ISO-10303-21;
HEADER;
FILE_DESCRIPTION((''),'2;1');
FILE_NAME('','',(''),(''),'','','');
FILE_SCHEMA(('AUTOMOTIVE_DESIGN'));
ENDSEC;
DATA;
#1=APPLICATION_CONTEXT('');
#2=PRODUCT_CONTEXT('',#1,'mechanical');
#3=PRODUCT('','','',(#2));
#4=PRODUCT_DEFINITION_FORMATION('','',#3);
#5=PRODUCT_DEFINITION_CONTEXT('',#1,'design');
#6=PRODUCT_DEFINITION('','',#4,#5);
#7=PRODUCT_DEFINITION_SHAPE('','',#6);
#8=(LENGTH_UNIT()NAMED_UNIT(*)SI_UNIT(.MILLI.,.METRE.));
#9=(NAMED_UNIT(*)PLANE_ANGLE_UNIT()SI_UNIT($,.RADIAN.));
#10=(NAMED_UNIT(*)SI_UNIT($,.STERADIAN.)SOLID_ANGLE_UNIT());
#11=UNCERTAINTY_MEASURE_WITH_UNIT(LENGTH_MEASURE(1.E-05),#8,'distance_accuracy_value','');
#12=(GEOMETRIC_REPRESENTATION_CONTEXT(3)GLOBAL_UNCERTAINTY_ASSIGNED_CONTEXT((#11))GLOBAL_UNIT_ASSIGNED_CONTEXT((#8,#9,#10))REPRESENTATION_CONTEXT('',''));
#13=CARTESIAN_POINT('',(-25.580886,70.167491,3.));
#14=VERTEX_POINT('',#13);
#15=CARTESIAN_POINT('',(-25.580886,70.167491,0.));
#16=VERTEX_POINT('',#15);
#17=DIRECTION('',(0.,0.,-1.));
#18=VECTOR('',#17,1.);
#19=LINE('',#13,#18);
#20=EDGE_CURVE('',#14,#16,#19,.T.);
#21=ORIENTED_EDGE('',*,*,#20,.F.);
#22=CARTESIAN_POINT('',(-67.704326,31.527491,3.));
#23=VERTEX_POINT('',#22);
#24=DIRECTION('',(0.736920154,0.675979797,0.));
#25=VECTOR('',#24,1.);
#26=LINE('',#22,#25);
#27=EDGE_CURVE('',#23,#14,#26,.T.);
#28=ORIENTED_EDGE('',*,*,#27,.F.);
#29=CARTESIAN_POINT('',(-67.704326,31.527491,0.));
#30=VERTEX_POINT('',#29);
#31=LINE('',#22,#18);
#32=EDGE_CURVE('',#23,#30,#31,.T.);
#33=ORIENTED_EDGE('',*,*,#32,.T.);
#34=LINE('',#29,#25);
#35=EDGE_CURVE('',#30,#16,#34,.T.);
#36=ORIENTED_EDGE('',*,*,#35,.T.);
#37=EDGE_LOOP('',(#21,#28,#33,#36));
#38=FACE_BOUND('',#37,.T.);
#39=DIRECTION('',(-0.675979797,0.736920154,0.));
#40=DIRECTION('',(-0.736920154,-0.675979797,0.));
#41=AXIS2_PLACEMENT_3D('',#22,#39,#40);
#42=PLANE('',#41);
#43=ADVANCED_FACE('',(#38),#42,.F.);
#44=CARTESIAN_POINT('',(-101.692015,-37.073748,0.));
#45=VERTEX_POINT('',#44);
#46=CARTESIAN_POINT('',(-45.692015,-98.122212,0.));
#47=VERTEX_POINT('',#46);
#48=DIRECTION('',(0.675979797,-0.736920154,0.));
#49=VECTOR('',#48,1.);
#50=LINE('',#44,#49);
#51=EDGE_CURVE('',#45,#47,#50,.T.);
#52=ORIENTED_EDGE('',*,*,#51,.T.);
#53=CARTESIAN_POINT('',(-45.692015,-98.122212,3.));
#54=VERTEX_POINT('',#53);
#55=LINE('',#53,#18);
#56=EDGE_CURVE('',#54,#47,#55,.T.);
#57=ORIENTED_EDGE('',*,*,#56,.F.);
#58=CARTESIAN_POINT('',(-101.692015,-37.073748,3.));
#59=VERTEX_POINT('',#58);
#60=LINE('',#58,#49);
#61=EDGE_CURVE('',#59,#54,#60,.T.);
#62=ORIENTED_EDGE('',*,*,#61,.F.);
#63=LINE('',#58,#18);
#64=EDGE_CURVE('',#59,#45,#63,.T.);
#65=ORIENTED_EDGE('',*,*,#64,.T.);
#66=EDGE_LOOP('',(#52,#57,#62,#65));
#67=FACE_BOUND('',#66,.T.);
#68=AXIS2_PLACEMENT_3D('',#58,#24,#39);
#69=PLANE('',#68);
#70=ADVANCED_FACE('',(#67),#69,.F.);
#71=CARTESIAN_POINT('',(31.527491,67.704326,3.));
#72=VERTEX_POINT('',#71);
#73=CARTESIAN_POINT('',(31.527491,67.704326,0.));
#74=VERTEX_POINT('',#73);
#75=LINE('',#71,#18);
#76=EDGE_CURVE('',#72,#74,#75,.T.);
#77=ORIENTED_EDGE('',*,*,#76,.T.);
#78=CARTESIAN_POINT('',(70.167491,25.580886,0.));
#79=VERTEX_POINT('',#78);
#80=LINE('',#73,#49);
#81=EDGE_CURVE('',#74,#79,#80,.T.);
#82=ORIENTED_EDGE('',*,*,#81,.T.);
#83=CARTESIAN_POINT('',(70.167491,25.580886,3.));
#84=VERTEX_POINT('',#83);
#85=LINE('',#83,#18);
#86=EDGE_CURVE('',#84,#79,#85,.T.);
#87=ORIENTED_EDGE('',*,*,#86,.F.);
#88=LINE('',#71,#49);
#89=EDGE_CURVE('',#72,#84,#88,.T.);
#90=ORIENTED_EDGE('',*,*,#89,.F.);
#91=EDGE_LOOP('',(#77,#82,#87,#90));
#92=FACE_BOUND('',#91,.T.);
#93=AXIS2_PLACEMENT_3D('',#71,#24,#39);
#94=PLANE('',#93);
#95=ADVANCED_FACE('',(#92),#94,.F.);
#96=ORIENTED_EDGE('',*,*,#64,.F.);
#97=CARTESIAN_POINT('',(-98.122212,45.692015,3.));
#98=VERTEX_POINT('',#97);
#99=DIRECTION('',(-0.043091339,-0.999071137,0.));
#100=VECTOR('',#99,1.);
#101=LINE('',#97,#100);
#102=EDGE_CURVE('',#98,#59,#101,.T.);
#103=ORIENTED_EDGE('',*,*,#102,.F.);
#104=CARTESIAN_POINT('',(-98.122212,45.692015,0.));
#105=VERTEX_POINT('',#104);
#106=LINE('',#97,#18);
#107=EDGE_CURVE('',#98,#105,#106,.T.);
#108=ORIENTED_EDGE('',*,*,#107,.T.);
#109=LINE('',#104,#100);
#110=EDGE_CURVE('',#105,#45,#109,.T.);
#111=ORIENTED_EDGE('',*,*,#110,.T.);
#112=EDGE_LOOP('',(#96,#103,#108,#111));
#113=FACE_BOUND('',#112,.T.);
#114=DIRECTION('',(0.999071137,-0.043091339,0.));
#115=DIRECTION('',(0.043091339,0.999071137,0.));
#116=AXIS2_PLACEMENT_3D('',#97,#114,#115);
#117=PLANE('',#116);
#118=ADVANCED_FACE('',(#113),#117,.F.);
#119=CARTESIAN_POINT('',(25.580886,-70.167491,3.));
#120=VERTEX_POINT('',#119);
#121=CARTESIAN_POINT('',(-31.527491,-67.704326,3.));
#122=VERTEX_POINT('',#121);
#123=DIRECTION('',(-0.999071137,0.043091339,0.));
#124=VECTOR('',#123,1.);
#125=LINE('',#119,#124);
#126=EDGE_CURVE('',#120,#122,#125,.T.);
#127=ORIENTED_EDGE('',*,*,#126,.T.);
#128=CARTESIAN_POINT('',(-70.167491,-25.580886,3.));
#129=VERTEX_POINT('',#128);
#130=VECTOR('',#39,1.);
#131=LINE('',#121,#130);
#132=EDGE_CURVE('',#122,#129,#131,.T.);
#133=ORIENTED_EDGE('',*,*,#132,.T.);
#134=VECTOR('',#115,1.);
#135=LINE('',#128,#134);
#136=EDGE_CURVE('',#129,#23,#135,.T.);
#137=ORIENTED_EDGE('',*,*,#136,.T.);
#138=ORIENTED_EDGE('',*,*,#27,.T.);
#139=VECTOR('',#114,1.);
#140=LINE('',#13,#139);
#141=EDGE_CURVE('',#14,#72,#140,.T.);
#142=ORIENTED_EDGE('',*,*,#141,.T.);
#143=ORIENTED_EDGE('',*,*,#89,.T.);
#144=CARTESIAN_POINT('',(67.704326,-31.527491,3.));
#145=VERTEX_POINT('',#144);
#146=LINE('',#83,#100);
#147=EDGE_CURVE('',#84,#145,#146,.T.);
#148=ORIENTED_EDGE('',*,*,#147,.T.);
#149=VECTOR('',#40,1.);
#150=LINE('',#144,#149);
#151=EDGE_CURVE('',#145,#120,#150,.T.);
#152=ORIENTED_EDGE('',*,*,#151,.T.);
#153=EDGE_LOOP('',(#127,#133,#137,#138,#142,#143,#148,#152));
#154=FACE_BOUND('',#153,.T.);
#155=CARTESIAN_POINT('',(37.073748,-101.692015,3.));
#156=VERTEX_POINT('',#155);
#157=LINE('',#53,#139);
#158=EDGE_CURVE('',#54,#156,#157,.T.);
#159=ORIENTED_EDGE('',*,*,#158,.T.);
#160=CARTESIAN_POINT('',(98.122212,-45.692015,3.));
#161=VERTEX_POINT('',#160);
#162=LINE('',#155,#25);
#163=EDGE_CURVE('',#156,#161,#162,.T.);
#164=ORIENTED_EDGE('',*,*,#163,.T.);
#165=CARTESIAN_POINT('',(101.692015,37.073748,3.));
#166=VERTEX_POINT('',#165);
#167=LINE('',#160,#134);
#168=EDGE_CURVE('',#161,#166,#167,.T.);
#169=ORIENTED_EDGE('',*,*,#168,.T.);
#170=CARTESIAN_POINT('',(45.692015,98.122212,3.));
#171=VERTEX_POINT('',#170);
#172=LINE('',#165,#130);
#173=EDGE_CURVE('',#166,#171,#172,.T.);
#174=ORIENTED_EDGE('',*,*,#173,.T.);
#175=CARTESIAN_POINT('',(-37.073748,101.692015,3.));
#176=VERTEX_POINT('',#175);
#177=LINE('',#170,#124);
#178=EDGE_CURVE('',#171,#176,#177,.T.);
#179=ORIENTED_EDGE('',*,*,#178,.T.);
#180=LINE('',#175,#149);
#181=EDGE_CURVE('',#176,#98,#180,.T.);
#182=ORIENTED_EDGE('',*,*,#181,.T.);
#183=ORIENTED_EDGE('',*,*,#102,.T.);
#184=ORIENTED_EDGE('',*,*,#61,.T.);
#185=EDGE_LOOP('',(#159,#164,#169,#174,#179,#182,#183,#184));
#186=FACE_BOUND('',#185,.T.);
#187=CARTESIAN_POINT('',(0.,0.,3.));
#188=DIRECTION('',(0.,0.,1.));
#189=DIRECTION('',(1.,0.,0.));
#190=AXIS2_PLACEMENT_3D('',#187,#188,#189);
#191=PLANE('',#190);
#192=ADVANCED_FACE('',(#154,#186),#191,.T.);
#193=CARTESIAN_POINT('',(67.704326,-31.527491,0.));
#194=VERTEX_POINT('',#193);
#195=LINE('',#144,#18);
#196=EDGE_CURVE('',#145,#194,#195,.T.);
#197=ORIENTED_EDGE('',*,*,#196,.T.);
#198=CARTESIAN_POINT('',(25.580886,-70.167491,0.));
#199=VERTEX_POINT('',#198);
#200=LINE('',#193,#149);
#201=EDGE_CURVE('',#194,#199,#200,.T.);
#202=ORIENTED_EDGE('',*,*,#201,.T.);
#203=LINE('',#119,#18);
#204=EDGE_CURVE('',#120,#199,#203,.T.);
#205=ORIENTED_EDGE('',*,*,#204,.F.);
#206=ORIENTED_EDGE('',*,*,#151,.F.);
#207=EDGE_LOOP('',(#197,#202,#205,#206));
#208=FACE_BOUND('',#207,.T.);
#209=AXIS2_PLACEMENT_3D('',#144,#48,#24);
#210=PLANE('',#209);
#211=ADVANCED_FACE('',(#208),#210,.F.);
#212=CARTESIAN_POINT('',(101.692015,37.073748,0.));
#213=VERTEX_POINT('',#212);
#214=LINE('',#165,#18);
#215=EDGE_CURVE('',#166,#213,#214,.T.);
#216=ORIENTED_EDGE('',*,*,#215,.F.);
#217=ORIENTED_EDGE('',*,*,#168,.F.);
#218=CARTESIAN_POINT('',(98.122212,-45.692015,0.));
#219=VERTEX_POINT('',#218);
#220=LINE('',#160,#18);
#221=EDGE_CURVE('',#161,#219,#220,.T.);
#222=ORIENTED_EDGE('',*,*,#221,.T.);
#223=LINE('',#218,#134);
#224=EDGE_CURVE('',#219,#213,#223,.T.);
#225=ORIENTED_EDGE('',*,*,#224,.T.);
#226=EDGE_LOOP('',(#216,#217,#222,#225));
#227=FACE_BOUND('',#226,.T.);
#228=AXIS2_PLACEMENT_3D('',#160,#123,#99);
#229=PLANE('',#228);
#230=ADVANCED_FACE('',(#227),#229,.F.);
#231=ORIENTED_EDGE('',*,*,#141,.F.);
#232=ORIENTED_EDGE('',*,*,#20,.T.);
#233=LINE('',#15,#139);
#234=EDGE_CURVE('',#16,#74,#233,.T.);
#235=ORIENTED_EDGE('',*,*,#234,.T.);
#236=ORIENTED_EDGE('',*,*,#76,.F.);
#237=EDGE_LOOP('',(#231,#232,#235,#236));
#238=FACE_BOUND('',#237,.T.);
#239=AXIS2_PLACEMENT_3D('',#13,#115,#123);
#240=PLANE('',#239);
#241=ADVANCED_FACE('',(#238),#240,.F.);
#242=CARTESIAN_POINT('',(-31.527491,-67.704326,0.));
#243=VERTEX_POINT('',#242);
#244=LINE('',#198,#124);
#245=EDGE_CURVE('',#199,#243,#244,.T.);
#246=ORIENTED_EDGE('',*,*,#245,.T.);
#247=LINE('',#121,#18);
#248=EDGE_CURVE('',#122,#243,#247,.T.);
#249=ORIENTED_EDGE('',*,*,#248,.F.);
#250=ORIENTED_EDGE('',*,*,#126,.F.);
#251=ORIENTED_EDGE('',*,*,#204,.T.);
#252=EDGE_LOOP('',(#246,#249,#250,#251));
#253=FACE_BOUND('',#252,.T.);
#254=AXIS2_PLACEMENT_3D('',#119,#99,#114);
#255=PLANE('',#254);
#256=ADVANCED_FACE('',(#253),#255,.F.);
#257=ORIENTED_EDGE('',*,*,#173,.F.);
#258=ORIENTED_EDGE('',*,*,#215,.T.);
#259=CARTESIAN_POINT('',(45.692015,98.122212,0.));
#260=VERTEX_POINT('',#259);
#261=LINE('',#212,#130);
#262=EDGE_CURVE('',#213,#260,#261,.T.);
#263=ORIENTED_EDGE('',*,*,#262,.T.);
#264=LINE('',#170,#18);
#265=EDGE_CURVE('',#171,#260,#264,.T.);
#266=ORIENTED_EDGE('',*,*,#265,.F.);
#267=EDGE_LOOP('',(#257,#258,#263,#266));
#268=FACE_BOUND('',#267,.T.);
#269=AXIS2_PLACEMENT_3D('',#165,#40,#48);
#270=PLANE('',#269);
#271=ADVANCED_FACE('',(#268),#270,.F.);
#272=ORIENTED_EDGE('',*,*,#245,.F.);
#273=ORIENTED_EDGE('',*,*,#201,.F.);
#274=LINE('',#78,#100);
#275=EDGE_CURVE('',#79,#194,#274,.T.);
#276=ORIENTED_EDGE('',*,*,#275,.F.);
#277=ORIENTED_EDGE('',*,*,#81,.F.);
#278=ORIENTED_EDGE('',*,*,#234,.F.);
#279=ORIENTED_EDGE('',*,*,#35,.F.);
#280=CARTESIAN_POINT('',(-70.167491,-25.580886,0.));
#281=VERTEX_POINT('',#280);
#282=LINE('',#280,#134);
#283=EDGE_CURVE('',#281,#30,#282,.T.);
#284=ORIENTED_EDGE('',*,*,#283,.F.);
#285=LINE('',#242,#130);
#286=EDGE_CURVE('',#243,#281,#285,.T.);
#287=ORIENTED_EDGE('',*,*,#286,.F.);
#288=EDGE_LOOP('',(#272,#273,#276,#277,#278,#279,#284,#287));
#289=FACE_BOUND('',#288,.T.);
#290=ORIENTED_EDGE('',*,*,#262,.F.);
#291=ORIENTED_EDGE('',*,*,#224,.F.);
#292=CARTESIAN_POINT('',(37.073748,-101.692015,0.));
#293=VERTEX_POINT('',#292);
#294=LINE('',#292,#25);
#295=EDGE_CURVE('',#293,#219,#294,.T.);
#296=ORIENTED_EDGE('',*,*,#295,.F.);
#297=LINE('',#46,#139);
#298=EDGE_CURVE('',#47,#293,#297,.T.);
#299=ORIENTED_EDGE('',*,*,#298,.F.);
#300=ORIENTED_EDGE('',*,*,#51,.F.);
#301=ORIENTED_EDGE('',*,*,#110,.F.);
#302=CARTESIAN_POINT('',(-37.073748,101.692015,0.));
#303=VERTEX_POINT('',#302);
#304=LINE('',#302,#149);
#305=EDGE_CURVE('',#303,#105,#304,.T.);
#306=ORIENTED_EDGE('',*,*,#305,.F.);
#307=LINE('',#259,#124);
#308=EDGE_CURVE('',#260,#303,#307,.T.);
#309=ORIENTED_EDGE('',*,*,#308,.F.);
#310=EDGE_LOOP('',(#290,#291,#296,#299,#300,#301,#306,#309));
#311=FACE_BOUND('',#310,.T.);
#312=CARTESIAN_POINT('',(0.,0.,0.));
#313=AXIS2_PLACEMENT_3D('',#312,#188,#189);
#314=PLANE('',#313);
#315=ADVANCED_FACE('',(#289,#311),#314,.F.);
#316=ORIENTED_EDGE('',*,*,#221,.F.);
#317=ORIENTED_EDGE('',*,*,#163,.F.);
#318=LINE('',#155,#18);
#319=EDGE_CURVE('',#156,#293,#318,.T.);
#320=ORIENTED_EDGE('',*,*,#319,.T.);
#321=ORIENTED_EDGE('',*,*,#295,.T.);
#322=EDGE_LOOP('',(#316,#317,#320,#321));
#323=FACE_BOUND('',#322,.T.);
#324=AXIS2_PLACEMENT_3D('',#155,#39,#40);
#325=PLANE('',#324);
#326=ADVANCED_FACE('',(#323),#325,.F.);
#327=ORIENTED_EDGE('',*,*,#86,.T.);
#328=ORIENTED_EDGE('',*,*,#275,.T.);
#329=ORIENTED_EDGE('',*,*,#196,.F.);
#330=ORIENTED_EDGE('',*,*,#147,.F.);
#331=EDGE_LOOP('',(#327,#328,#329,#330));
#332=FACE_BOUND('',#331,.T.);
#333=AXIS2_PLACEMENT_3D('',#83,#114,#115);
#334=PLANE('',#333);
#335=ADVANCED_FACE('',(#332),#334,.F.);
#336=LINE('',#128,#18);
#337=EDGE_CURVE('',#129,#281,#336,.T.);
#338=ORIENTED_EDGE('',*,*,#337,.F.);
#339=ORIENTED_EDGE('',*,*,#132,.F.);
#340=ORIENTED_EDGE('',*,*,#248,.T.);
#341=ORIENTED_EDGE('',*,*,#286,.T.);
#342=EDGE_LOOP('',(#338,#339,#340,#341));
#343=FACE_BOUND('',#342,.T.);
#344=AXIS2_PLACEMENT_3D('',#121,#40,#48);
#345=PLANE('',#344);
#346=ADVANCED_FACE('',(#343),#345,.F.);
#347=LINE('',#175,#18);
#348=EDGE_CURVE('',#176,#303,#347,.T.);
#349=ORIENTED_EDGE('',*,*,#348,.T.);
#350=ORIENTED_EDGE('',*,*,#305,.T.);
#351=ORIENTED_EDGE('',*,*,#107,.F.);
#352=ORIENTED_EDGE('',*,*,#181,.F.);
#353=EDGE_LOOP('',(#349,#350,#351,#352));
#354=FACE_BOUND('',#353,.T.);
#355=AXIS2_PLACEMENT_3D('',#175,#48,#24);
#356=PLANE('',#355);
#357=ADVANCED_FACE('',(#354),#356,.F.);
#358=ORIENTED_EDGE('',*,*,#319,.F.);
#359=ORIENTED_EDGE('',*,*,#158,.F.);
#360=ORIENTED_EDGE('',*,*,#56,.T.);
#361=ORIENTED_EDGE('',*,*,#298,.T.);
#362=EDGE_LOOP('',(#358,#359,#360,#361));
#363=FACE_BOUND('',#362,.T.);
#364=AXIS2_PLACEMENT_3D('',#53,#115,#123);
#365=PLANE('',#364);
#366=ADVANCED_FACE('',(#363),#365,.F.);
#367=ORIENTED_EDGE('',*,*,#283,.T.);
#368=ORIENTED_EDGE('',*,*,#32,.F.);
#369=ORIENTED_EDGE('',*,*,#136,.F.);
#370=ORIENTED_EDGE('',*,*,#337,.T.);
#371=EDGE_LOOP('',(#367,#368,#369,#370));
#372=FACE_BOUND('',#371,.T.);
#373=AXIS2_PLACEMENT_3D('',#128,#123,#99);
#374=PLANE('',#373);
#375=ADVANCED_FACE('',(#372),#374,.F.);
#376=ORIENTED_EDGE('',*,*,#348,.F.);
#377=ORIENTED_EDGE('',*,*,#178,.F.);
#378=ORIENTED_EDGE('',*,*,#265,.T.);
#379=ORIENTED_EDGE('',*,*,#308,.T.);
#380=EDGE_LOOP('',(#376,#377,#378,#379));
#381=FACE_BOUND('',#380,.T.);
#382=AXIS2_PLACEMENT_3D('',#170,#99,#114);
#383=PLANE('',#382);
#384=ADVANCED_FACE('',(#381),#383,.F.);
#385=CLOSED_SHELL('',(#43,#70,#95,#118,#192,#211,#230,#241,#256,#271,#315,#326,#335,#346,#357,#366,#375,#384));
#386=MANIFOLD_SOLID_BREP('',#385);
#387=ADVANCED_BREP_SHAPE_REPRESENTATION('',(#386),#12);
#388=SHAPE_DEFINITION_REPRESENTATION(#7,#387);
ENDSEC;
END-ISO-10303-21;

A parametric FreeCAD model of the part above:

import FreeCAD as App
import Part
import Sketcher
from FreeCAD import Vector

doc = App.newDocument("Part")
body = doc.addObject("PartDesign::Body", "Body")

# Sketch on XY plane
sketch1 = body.newObject("Sketcher::SketchObject", "Sketch")
sketch1.AttachmentSupport = (doc.getObject("XY_Plane"), [""])
sketch1.MapMode = "FlatFace"
sketch1.addGeometry(Part.LineSegment(Vector(-45.692015, -98.122212, 0), Vector(37.073748, -101.692015, 0)), False)
sketch1.addGeometry(Part.LineSegment(Vector(37.073748, -101.692015, 0), Vector(98.122212, -45.692015, 0)), False)
sketch1.addGeometry(Part.LineSegment(Vector(98.122212, -45.692015, 0), Vector(101.692015, 37.073748, 0)), False)
sketch1.addGeometry(Part.LineSegment(Vector(101.692015, 37.073748, 0), Vector(45.692015, 98.122212, 0)), False)
sketch1.addGeometry(Part.LineSegment(Vector(45.692015, 98.122212, 0), Vector(-37.073748, 101.692015, 0)), False)
sketch1.addGeometry(Part.LineSegment(Vector(-37.073748, 101.692015, 0), Vector(-98.122212, 45.692015, 0)), False)
sketch1.addGeometry(Part.LineSegment(Vector(-98.122212, 45.692015, 0), Vector(-101.692015, -37.073748, 0)), False)
sketch1.addGeometry(Part.LineSegment(Vector(-101.692015, -37.073748, 0), Vector(-45.692015, -98.122212, 0)), False)
sketch1.addConstraint(Sketcher.Constraint("Coincident", 0, 2, 1, 1))
sketch1.addConstraint(Sketcher.Constraint("Coincident", 1, 2, 2, 1))
sketch1.addConstraint(Sketcher.Constraint("Coincident", 2, 2, 3, 1))
sketch1.addConstraint(Sketcher.Constraint("Coincident", 3, 2, 4, 1))
sketch1.addConstraint(Sketcher.Constraint("Coincident", 4, 2, 5, 1))
sketch1.addConstraint(Sketcher.Constraint("Coincident", 5, 2, 6, 1))
sketch1.addConstraint(Sketcher.Constraint("Coincident", 6, 2, 7, 1))
sketch1.addConstraint(Sketcher.Constraint("Coincident", 7, 2, 0, 1))
sketch1.addConstraint(Sketcher.Constraint("Symmetric", 0, 2, 4, 2, -1, 1))
sketch1.addConstraint(Sketcher.Constraint("Symmetric", 1, 2, 5, 2, -1, 1))
sketch1.addConstraint(Sketcher.Constraint("Symmetric", 2, 2, 6, 2, -1, 1))
sketch1.addConstraint(Sketcher.Constraint("Symmetric", 3, 2, 7, 2, -1, 1))
sketch1.addConstraint(Sketcher.Constraint("Perpendicular", 0, 2))
sketch1.addConstraint(Sketcher.Constraint("Perpendicular", 1, 3))
sketch1.addConstraint(Sketcher.Constraint("Equal", 0, 1))
sketch1.addConstraint(Sketcher.Constraint("Equal", 1, 2))
sketch1.addConstraint(Sketcher.Constraint("Equal", 2, 3))
sketch1.addConstraint(Sketcher.Constraint("DistanceY", 0, 2, 1, 2, 56.0))
sketch1.addConstraint(Sketcher.Constraint("DistanceX", -1, 1, 1, 2, 98.122212))
sketch1.addConstraint(Sketcher.Constraint("DistanceX", 4, 2, 1, 2, 135.195959))
pad1 = body.newObject("PartDesign::Pad", "Pad")
pad1.Profile = sketch1
pad1.Length = 3

# Sketch on XY plane
sketch2 = body.newObject("Sketcher::SketchObject", "Sketch001")
sketch2.AttachmentSupport = (doc.getObject("XY_Plane"), [""])
sketch2.MapMode = "FlatFace"
sketch2.addGeometry(Part.LineSegment(Vector(67.704326, -31.527491, 0), Vector(25.580886, -70.167491, 0)), False)
sketch2.addGeometry(Part.LineSegment(Vector(25.580886, -70.167491, 0), Vector(-31.527491, -67.704326, 0)), False)
sketch2.addGeometry(Part.LineSegment(Vector(-31.527491, -67.704326, 0), Vector(-70.167491, -25.580886, 0)), False)
sketch2.addGeometry(Part.LineSegment(Vector(-70.167491, -25.580886, 0), Vector(-67.704326, 31.527491, 0)), False)
sketch2.addGeometry(Part.LineSegment(Vector(-67.704326, 31.527491, 0), Vector(-25.580886, 70.167491, 0)), False)
sketch2.addGeometry(Part.LineSegment(Vector(-25.580886, 70.167491, 0), Vector(31.527491, 67.704326, 0)), False)
sketch2.addGeometry(Part.LineSegment(Vector(31.527491, 67.704326, 0), Vector(70.167491, 25.580886, 0)), False)
sketch2.addGeometry(Part.LineSegment(Vector(70.167491, 25.580886, 0), Vector(67.704326, -31.527491, 0)), False)
sketch2.addConstraint(Sketcher.Constraint("Coincident", 0, 2, 1, 1))
sketch2.addConstraint(Sketcher.Constraint("Coincident", 1, 2, 2, 1))
sketch2.addConstraint(Sketcher.Constraint("Coincident", 2, 2, 3, 1))
sketch2.addConstraint(Sketcher.Constraint("Coincident", 3, 2, 4, 1))
sketch2.addConstraint(Sketcher.Constraint("Coincident", 4, 2, 5, 1))
sketch2.addConstraint(Sketcher.Constraint("Coincident", 5, 2, 6, 1))
sketch2.addConstraint(Sketcher.Constraint("Coincident", 6, 2, 7, 1))
sketch2.addConstraint(Sketcher.Constraint("Coincident", 7, 2, 0, 1))
sketch2.addConstraint(Sketcher.Constraint("Symmetric", 0, 2, 4, 2, -1, 1))
sketch2.addConstraint(Sketcher.Constraint("Symmetric", 1, 2, 5, 2, -1, 1))
sketch2.addConstraint(Sketcher.Constraint("Symmetric", 2, 2, 6, 2, -1, 1))
sketch2.addConstraint(Sketcher.Constraint("Symmetric", 3, 2, 7, 2, -1, 1))
sketch2.addConstraint(Sketcher.Constraint("Perpendicular", 0, 2))
sketch2.addConstraint(Sketcher.Constraint("Perpendicular", 1, 3))
sketch2.addConstraint(Sketcher.Constraint("Equal", 0, 1))
sketch2.addConstraint(Sketcher.Constraint("Equal", 1, 2))
sketch2.addConstraint(Sketcher.Constraint("Equal", 2, 3))
sketch2.addConstraint(Sketcher.Constraint("DistanceX", 2, 2, 1, 2, 38.64))
sketch2.addConstraint(Sketcher.Constraint("Distance", 0, 57.161472))
sketch2.addConstraint(Sketcher.Constraint("DistanceY", 0, 2, -1, 1, 70.167491))
pocket1 = body.newObject("PartDesign::Pocket", "Pocket")
pocket1.Profile = sketch2
pocket1.Length = 3
pocket1.Reversed = True

doc.recompute()
